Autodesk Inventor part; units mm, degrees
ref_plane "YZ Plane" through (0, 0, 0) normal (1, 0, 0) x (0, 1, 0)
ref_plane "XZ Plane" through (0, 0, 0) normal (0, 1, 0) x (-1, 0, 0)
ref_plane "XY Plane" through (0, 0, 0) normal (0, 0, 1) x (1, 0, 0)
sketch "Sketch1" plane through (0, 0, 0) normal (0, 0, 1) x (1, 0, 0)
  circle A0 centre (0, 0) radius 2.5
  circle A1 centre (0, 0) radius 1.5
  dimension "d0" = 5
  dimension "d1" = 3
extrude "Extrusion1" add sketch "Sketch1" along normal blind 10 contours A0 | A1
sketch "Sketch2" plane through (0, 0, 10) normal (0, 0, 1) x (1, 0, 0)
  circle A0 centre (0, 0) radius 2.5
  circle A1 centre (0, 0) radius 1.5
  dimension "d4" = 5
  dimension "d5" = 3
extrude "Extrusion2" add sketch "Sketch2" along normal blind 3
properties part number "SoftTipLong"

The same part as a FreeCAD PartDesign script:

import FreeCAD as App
import Part
import Sketcher

V = App.Vector
Q = App.Units.Quantity

doc = App.newDocument("Part")
body = doc.addObject("PartDesign::Body", "Body")

# Sketch on XY plane
sketch1 = body.newObject("Sketcher::SketchObject", "Sketch")
sketch1.AttachmentSupport = (doc.getObject("XY_Plane"), [""])
sketch1.MapMode = "FlatFace"
sketch1.addGeometry(Part.Circle(V(0, 0, 0), V(0, 0, 1), 2.5), False)
sketch1.addConstraint(Sketcher.Constraint("Coincident", 0, 3, -1, 1))
sketch1.addConstraint(Sketcher.Constraint("Diameter", 0, Q("5 mm")))
pad1 = body.newObject("PartDesign::Pad", "Pad")
pad1.Profile = sketch1
pad1.Length = 10

# Sketch on XY plane
sketch2 = body.newObject("Sketcher::SketchObject", "Sketch001")
sketch2.AttachmentSupport = (doc.getObject("XY_Plane"), [""])
sketch2.MapMode = "FlatFace"
sketch2.AttachmentOffset = App.Placement(V(0, 0, 10), App.Rotation())
sketch2.addGeometry(Part.Circle(V(0, 0, 0), V(0, 0, 1), 2.5), False)
sketch2.addGeometry(Part.Circle(V(0, 0, 0), V(0, 0, 1), 1.5), False)
sketch2.addConstraint(Sketcher.Constraint("Coincident", 0, 3, -1, 1))
sketch2.addConstraint(Sketcher.Constraint("Coincident", 1, 3, -1, 1))
sketch2.addConstraint(Sketcher.Constraint("Diameter", 0, Q("5 mm")))
sketch2.addConstraint(Sketcher.Constraint("Diameter", 1, Q("3 mm")))
pad2 = body.newObject("PartDesign::Pad", "Pad001")
pad2.Profile = sketch2
pad2.Length = 3

doc.recompute()
